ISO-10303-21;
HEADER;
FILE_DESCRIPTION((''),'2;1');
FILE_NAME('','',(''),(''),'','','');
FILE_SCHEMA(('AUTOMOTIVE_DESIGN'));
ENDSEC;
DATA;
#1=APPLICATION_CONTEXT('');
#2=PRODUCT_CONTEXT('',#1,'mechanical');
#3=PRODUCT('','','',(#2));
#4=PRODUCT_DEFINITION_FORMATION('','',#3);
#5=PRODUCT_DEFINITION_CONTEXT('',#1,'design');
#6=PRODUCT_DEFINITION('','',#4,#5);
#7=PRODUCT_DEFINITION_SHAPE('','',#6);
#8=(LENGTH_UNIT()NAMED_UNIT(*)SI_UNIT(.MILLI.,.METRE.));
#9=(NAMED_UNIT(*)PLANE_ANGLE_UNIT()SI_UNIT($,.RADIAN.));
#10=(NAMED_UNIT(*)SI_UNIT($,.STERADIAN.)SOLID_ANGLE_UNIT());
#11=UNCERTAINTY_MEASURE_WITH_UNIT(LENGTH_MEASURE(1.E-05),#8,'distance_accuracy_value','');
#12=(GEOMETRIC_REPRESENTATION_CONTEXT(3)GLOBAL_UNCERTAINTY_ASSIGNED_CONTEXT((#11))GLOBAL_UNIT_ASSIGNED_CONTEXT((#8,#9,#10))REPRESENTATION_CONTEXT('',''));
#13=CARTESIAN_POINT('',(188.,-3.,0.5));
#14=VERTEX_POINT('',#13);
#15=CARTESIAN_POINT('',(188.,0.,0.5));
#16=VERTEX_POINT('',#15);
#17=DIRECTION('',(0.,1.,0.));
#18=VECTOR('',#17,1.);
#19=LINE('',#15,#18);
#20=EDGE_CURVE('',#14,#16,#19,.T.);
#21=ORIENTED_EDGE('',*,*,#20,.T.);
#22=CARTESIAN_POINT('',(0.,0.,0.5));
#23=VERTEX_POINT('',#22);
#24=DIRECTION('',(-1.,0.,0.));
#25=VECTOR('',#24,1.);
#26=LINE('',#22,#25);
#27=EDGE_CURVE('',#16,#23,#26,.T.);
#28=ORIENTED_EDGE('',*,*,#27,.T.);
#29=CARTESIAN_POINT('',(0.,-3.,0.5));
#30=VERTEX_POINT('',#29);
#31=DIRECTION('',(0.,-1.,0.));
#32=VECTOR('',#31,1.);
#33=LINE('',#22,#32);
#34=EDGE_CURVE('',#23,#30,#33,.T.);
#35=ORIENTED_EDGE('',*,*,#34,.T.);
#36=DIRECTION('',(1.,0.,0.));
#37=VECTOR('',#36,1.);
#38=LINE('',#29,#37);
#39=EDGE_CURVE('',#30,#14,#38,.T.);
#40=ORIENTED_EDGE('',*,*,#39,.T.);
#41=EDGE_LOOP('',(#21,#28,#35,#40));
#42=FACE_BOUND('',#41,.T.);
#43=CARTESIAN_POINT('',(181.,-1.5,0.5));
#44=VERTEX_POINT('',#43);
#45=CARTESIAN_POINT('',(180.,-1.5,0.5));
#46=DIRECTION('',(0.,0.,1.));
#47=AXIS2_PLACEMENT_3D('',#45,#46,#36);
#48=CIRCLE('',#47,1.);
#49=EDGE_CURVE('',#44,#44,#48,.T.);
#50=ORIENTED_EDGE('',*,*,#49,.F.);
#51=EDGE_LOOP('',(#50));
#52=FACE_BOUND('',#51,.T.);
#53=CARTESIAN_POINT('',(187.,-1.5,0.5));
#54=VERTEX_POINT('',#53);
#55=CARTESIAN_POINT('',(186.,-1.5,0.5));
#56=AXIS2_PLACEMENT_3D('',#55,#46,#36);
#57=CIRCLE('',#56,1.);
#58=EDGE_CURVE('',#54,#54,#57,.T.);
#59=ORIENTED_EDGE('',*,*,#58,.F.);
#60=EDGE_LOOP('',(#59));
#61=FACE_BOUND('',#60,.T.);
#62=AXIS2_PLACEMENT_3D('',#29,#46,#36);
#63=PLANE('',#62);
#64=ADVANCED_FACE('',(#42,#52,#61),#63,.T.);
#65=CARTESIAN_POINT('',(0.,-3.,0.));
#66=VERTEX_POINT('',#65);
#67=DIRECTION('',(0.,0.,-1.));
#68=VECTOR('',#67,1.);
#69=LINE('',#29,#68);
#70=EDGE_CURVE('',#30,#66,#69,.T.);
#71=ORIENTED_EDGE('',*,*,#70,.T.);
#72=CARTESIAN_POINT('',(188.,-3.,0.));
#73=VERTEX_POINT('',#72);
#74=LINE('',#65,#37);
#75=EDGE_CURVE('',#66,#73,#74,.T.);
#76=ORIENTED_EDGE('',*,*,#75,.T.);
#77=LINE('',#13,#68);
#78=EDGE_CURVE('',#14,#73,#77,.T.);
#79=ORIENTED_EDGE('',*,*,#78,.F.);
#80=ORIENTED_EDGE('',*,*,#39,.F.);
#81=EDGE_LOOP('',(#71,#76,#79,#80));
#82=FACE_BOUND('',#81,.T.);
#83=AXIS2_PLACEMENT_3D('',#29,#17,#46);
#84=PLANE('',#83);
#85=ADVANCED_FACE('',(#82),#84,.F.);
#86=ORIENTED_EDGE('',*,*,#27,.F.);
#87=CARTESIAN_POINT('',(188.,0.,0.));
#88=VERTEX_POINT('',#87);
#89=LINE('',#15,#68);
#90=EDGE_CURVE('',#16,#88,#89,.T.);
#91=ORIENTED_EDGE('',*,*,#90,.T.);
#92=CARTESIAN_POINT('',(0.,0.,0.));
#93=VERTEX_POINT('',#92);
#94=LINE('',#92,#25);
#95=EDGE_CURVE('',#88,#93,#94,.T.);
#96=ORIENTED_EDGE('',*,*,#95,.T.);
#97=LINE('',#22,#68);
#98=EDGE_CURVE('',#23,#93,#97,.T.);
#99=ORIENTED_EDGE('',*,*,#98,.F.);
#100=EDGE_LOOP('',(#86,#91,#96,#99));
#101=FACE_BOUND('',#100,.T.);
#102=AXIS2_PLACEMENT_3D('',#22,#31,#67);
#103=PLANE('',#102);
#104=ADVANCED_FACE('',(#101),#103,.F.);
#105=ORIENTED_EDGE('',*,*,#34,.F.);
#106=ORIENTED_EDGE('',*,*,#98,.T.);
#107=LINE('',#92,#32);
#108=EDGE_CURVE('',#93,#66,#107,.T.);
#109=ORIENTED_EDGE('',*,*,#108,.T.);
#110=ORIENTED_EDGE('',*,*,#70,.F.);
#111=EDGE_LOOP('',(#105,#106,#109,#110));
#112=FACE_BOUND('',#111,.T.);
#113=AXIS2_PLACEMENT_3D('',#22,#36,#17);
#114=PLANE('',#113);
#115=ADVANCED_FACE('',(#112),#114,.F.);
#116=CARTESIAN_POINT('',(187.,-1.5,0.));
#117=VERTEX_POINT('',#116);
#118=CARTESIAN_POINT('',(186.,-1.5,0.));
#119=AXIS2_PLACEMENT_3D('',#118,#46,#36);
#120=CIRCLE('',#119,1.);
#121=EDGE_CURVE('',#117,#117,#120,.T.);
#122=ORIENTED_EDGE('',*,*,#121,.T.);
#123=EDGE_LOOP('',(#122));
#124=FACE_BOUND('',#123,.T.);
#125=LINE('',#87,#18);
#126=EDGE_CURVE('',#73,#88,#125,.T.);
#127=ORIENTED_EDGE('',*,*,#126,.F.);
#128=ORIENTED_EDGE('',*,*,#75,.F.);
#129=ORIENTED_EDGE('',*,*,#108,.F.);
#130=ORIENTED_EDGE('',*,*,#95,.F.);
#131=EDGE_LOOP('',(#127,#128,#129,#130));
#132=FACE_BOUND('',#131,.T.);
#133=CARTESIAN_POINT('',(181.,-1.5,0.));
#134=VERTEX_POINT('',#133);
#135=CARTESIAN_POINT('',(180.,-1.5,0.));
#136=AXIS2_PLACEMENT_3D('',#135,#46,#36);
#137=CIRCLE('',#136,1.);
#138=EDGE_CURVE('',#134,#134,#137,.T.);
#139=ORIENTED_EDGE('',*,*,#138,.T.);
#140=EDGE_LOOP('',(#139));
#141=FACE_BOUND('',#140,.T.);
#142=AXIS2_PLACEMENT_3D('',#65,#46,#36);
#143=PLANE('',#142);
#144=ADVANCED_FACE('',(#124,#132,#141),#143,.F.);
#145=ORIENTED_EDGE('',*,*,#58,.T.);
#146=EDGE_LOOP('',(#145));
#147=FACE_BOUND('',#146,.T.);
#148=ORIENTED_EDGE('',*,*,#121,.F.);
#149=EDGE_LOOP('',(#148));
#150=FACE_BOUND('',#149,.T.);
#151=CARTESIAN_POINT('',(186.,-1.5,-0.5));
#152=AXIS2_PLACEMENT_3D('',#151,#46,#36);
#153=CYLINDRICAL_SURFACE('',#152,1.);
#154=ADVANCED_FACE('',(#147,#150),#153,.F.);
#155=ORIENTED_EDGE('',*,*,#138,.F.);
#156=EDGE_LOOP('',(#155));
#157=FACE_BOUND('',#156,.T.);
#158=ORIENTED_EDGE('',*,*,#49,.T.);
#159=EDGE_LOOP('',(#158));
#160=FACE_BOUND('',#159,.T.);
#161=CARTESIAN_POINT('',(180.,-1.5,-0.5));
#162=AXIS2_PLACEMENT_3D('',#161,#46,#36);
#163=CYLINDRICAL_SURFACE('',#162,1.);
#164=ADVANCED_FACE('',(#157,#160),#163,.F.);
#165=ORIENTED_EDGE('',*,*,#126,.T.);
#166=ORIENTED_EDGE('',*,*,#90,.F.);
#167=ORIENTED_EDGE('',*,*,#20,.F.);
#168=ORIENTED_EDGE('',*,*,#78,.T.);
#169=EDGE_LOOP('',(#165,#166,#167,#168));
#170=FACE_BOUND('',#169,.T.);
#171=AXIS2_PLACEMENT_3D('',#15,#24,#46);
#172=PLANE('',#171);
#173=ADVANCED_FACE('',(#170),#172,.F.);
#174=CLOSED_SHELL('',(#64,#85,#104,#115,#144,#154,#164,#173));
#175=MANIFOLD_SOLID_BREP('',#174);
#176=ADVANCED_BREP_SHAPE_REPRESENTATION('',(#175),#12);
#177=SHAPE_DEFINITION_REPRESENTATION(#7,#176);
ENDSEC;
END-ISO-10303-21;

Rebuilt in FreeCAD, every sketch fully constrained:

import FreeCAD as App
import Part
import Sketcher

V = App.Vector
Q = App.Units.Quantity


def add_polygon(sketch, points):
    """Adds a closed chain of lines whose ends are joined by coincident constraints."""
    first, n = sketch.GeometryCount, len(points)
    for a, b in zip(points, points[1:] + points[:1]):
        sketch.addGeometry(Part.LineSegment(App.Vector(*a, 0), App.Vector(*b, 0)), False)
    for i in range(n):
        sketch.addConstraint(Sketcher.Constraint("Coincident", first + i, 2, first + (i + 1) % n, 1))

doc = App.newDocument("Part")
params = doc.addObject("Spreadsheet::Sheet", "Params")
for row, (alias, value) in enumerate([
    ("sketch1_width", "188 mm"),
    ("sketch1_height", "3 mm"),
    ("pad1_length", "0.5 mm"),
    ("sketch2_diameter", "2 mm"),
    ("pocket1_length", "1 mm"),
], start=1):
    params.set(f"A{row}", alias)
    params.set(f"B{row}", "=" + value)
    params.setAlias(f"B{row}", alias)

body = doc.addObject("PartDesign::Body", "Body")

sketch1 = body.newObject("Sketcher::SketchObject", "Sketch")
sketch1.AttachmentSupport = (doc.getObject("XY_Plane"), [""])
sketch1.MapMode = "FlatFace"
add_polygon(sketch1, [(0, 0), (0, -3), (188, -3), (188, 0)])
sketch1.addConstraint(Sketcher.Constraint("Vertical", 0))
sketch1.addConstraint(Sketcher.Constraint("Horizontal", 1))
sketch1.addConstraint(Sketcher.Constraint("Vertical", 2))
sketch1.addConstraint(Sketcher.Constraint("Horizontal", 3))
sketch1.addConstraint(Sketcher.Constraint("Coincident", 3, 2, -1, 1))
sketch1.addConstraint(Sketcher.Constraint("DistanceX", 1, 1, 1, 2, Q("188 mm")))
sketch1.addConstraint(Sketcher.Constraint("DistanceY", 0, 2, 0, 1, Q("3 mm")))
sketch1.setExpression("Constraints[9]", "Params.sketch1_width")
sketch1.setExpression("Constraints[10]", "Params.sketch1_height")
pad1 = body.newObject("PartDesign::Pad", "Pad")
pad1.Profile = sketch1
pad1.setExpression("Length", "Params.pad1_length")

sketch2 = body.newObject("Sketcher::SketchObject", "Sketch001")
sketch2.AttachmentSupport = (doc.getObject("XY_Plane"), [""])
sketch2.MapMode = "FlatFace"
sketch2.AttachmentOffset = App.Placement(V(0, 0, 0.5), App.Rotation())
sketch2.addGeometry(Part.Circle(V(180, -1.5, 0), V(0, 0, 1), 1), False)
sketch2.addGeometry(Part.Circle(V(186, -1.5, 0), V(0, 0, 1), 1), False)
sketch2.addConstraint(Sketcher.Constraint("Equal", 0, 1))
sketch2.addConstraint(Sketcher.Constraint("Horizontal", 0, 3, 1, 3))
sketch2.addConstraint(Sketcher.Constraint("Diameter", 0, Q("2 mm")))
sketch2.addConstraint(Sketcher.Constraint("DistanceX", -1, 1, 0, 3, Q("180 mm")))
sketch2.addConstraint(Sketcher.Constraint("DistanceX", -1, 1, 1, 3, Q("186 mm")))
sketch2.addConstraint(Sketcher.Constraint("DistanceY", 0, 3, -1, 1, Q("1.5 mm")))
sketch2.setExpression("Constraints[2]", "Params.sketch2_diameter")
pocket1 = body.newObject("PartDesign::Pocket", "Pocket")
pocket1.Profile = sketch2
pocket1.setExpression("Length", "Params.pocket1_length")

doc.recompute()
